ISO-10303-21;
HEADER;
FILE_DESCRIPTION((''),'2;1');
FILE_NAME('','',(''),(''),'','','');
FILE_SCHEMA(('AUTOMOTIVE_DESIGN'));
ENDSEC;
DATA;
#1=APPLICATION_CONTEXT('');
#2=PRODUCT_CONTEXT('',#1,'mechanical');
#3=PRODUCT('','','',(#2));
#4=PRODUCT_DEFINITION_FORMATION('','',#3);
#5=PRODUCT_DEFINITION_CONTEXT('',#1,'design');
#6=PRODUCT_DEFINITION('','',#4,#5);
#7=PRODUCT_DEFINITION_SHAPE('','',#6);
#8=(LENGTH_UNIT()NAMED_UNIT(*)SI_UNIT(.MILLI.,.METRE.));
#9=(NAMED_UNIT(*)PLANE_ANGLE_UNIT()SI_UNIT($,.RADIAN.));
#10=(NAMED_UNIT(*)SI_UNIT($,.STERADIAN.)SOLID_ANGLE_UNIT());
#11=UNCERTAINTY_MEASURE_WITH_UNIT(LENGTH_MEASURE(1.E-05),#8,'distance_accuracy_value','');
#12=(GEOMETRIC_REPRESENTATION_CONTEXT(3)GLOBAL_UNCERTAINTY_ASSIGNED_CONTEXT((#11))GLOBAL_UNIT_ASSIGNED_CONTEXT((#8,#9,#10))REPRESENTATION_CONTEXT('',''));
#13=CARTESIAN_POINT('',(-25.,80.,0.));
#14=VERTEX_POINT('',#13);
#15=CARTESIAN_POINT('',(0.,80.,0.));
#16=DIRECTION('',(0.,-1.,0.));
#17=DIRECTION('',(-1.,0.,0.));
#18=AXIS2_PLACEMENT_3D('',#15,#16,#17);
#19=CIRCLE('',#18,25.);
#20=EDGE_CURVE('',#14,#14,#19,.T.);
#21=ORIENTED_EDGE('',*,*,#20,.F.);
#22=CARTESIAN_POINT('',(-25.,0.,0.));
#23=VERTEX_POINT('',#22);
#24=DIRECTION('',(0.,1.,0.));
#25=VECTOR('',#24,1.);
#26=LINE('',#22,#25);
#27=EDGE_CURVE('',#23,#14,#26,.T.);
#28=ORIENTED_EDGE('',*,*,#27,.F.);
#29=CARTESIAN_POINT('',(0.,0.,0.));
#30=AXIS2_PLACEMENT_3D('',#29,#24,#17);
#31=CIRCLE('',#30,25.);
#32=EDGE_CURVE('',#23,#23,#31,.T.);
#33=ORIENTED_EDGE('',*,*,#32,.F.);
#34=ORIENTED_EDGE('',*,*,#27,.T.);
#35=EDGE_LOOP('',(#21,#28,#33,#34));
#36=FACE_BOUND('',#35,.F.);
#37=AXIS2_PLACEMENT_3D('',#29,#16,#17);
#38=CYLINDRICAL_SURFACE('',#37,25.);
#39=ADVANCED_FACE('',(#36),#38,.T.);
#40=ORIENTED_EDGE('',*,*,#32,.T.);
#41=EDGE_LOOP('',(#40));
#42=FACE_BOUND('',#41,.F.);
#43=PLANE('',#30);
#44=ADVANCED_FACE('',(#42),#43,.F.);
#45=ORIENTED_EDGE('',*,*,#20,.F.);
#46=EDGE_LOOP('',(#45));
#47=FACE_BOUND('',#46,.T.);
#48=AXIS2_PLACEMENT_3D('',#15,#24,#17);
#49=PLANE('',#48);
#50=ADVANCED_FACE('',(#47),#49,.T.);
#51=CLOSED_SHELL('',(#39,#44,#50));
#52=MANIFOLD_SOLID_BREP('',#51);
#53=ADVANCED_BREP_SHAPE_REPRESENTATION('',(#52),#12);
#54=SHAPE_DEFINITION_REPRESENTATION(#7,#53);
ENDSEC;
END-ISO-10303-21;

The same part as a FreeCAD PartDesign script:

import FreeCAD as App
import Part
import Sketcher

doc = App.newDocument("Part")
params = doc.addObject("Spreadsheet::Sheet", "Params")
for row, (alias, value) in enumerate([
    ("sketch1_diameter", "50 mm"),
    ("pad1_length", "80 mm"),
], start=1):
    params.set(f"A{row}", alias)
    params.set(f"B{row}", "=" + value)
    params.setAlias(f"B{row}", alias)

body = doc.addObject("PartDesign::Body", "Body")

# Sketch on XZ plane
sketch1 = body.newObject("Sketcher::SketchObject", "Sketch")
sketch1.AttachmentSupport = (doc.getObject("XZ_Plane"), [""])
sketch1.MapMode = "FlatFace"
sketch1.addGeometry(Part.Circle(App.Vector(0, 0, 0), App.Vector(0, 0, 1), 25), False)
sketch1.addConstraint([
    Sketcher.Constraint("Coincident", 0, 3, -1, 1),
    Sketcher.Constraint("Diameter", 0, 50.0),
])
sketch1.setExpression("Constraints[1]", "Params.sketch1_diameter")
pad1 = body.newObject("PartDesign::Pad", "Pad")
pad1.Profile = sketch1
pad1.setExpression("Length", "Params.pad1_length")
pad1.Reversed = True

doc.recompute()
